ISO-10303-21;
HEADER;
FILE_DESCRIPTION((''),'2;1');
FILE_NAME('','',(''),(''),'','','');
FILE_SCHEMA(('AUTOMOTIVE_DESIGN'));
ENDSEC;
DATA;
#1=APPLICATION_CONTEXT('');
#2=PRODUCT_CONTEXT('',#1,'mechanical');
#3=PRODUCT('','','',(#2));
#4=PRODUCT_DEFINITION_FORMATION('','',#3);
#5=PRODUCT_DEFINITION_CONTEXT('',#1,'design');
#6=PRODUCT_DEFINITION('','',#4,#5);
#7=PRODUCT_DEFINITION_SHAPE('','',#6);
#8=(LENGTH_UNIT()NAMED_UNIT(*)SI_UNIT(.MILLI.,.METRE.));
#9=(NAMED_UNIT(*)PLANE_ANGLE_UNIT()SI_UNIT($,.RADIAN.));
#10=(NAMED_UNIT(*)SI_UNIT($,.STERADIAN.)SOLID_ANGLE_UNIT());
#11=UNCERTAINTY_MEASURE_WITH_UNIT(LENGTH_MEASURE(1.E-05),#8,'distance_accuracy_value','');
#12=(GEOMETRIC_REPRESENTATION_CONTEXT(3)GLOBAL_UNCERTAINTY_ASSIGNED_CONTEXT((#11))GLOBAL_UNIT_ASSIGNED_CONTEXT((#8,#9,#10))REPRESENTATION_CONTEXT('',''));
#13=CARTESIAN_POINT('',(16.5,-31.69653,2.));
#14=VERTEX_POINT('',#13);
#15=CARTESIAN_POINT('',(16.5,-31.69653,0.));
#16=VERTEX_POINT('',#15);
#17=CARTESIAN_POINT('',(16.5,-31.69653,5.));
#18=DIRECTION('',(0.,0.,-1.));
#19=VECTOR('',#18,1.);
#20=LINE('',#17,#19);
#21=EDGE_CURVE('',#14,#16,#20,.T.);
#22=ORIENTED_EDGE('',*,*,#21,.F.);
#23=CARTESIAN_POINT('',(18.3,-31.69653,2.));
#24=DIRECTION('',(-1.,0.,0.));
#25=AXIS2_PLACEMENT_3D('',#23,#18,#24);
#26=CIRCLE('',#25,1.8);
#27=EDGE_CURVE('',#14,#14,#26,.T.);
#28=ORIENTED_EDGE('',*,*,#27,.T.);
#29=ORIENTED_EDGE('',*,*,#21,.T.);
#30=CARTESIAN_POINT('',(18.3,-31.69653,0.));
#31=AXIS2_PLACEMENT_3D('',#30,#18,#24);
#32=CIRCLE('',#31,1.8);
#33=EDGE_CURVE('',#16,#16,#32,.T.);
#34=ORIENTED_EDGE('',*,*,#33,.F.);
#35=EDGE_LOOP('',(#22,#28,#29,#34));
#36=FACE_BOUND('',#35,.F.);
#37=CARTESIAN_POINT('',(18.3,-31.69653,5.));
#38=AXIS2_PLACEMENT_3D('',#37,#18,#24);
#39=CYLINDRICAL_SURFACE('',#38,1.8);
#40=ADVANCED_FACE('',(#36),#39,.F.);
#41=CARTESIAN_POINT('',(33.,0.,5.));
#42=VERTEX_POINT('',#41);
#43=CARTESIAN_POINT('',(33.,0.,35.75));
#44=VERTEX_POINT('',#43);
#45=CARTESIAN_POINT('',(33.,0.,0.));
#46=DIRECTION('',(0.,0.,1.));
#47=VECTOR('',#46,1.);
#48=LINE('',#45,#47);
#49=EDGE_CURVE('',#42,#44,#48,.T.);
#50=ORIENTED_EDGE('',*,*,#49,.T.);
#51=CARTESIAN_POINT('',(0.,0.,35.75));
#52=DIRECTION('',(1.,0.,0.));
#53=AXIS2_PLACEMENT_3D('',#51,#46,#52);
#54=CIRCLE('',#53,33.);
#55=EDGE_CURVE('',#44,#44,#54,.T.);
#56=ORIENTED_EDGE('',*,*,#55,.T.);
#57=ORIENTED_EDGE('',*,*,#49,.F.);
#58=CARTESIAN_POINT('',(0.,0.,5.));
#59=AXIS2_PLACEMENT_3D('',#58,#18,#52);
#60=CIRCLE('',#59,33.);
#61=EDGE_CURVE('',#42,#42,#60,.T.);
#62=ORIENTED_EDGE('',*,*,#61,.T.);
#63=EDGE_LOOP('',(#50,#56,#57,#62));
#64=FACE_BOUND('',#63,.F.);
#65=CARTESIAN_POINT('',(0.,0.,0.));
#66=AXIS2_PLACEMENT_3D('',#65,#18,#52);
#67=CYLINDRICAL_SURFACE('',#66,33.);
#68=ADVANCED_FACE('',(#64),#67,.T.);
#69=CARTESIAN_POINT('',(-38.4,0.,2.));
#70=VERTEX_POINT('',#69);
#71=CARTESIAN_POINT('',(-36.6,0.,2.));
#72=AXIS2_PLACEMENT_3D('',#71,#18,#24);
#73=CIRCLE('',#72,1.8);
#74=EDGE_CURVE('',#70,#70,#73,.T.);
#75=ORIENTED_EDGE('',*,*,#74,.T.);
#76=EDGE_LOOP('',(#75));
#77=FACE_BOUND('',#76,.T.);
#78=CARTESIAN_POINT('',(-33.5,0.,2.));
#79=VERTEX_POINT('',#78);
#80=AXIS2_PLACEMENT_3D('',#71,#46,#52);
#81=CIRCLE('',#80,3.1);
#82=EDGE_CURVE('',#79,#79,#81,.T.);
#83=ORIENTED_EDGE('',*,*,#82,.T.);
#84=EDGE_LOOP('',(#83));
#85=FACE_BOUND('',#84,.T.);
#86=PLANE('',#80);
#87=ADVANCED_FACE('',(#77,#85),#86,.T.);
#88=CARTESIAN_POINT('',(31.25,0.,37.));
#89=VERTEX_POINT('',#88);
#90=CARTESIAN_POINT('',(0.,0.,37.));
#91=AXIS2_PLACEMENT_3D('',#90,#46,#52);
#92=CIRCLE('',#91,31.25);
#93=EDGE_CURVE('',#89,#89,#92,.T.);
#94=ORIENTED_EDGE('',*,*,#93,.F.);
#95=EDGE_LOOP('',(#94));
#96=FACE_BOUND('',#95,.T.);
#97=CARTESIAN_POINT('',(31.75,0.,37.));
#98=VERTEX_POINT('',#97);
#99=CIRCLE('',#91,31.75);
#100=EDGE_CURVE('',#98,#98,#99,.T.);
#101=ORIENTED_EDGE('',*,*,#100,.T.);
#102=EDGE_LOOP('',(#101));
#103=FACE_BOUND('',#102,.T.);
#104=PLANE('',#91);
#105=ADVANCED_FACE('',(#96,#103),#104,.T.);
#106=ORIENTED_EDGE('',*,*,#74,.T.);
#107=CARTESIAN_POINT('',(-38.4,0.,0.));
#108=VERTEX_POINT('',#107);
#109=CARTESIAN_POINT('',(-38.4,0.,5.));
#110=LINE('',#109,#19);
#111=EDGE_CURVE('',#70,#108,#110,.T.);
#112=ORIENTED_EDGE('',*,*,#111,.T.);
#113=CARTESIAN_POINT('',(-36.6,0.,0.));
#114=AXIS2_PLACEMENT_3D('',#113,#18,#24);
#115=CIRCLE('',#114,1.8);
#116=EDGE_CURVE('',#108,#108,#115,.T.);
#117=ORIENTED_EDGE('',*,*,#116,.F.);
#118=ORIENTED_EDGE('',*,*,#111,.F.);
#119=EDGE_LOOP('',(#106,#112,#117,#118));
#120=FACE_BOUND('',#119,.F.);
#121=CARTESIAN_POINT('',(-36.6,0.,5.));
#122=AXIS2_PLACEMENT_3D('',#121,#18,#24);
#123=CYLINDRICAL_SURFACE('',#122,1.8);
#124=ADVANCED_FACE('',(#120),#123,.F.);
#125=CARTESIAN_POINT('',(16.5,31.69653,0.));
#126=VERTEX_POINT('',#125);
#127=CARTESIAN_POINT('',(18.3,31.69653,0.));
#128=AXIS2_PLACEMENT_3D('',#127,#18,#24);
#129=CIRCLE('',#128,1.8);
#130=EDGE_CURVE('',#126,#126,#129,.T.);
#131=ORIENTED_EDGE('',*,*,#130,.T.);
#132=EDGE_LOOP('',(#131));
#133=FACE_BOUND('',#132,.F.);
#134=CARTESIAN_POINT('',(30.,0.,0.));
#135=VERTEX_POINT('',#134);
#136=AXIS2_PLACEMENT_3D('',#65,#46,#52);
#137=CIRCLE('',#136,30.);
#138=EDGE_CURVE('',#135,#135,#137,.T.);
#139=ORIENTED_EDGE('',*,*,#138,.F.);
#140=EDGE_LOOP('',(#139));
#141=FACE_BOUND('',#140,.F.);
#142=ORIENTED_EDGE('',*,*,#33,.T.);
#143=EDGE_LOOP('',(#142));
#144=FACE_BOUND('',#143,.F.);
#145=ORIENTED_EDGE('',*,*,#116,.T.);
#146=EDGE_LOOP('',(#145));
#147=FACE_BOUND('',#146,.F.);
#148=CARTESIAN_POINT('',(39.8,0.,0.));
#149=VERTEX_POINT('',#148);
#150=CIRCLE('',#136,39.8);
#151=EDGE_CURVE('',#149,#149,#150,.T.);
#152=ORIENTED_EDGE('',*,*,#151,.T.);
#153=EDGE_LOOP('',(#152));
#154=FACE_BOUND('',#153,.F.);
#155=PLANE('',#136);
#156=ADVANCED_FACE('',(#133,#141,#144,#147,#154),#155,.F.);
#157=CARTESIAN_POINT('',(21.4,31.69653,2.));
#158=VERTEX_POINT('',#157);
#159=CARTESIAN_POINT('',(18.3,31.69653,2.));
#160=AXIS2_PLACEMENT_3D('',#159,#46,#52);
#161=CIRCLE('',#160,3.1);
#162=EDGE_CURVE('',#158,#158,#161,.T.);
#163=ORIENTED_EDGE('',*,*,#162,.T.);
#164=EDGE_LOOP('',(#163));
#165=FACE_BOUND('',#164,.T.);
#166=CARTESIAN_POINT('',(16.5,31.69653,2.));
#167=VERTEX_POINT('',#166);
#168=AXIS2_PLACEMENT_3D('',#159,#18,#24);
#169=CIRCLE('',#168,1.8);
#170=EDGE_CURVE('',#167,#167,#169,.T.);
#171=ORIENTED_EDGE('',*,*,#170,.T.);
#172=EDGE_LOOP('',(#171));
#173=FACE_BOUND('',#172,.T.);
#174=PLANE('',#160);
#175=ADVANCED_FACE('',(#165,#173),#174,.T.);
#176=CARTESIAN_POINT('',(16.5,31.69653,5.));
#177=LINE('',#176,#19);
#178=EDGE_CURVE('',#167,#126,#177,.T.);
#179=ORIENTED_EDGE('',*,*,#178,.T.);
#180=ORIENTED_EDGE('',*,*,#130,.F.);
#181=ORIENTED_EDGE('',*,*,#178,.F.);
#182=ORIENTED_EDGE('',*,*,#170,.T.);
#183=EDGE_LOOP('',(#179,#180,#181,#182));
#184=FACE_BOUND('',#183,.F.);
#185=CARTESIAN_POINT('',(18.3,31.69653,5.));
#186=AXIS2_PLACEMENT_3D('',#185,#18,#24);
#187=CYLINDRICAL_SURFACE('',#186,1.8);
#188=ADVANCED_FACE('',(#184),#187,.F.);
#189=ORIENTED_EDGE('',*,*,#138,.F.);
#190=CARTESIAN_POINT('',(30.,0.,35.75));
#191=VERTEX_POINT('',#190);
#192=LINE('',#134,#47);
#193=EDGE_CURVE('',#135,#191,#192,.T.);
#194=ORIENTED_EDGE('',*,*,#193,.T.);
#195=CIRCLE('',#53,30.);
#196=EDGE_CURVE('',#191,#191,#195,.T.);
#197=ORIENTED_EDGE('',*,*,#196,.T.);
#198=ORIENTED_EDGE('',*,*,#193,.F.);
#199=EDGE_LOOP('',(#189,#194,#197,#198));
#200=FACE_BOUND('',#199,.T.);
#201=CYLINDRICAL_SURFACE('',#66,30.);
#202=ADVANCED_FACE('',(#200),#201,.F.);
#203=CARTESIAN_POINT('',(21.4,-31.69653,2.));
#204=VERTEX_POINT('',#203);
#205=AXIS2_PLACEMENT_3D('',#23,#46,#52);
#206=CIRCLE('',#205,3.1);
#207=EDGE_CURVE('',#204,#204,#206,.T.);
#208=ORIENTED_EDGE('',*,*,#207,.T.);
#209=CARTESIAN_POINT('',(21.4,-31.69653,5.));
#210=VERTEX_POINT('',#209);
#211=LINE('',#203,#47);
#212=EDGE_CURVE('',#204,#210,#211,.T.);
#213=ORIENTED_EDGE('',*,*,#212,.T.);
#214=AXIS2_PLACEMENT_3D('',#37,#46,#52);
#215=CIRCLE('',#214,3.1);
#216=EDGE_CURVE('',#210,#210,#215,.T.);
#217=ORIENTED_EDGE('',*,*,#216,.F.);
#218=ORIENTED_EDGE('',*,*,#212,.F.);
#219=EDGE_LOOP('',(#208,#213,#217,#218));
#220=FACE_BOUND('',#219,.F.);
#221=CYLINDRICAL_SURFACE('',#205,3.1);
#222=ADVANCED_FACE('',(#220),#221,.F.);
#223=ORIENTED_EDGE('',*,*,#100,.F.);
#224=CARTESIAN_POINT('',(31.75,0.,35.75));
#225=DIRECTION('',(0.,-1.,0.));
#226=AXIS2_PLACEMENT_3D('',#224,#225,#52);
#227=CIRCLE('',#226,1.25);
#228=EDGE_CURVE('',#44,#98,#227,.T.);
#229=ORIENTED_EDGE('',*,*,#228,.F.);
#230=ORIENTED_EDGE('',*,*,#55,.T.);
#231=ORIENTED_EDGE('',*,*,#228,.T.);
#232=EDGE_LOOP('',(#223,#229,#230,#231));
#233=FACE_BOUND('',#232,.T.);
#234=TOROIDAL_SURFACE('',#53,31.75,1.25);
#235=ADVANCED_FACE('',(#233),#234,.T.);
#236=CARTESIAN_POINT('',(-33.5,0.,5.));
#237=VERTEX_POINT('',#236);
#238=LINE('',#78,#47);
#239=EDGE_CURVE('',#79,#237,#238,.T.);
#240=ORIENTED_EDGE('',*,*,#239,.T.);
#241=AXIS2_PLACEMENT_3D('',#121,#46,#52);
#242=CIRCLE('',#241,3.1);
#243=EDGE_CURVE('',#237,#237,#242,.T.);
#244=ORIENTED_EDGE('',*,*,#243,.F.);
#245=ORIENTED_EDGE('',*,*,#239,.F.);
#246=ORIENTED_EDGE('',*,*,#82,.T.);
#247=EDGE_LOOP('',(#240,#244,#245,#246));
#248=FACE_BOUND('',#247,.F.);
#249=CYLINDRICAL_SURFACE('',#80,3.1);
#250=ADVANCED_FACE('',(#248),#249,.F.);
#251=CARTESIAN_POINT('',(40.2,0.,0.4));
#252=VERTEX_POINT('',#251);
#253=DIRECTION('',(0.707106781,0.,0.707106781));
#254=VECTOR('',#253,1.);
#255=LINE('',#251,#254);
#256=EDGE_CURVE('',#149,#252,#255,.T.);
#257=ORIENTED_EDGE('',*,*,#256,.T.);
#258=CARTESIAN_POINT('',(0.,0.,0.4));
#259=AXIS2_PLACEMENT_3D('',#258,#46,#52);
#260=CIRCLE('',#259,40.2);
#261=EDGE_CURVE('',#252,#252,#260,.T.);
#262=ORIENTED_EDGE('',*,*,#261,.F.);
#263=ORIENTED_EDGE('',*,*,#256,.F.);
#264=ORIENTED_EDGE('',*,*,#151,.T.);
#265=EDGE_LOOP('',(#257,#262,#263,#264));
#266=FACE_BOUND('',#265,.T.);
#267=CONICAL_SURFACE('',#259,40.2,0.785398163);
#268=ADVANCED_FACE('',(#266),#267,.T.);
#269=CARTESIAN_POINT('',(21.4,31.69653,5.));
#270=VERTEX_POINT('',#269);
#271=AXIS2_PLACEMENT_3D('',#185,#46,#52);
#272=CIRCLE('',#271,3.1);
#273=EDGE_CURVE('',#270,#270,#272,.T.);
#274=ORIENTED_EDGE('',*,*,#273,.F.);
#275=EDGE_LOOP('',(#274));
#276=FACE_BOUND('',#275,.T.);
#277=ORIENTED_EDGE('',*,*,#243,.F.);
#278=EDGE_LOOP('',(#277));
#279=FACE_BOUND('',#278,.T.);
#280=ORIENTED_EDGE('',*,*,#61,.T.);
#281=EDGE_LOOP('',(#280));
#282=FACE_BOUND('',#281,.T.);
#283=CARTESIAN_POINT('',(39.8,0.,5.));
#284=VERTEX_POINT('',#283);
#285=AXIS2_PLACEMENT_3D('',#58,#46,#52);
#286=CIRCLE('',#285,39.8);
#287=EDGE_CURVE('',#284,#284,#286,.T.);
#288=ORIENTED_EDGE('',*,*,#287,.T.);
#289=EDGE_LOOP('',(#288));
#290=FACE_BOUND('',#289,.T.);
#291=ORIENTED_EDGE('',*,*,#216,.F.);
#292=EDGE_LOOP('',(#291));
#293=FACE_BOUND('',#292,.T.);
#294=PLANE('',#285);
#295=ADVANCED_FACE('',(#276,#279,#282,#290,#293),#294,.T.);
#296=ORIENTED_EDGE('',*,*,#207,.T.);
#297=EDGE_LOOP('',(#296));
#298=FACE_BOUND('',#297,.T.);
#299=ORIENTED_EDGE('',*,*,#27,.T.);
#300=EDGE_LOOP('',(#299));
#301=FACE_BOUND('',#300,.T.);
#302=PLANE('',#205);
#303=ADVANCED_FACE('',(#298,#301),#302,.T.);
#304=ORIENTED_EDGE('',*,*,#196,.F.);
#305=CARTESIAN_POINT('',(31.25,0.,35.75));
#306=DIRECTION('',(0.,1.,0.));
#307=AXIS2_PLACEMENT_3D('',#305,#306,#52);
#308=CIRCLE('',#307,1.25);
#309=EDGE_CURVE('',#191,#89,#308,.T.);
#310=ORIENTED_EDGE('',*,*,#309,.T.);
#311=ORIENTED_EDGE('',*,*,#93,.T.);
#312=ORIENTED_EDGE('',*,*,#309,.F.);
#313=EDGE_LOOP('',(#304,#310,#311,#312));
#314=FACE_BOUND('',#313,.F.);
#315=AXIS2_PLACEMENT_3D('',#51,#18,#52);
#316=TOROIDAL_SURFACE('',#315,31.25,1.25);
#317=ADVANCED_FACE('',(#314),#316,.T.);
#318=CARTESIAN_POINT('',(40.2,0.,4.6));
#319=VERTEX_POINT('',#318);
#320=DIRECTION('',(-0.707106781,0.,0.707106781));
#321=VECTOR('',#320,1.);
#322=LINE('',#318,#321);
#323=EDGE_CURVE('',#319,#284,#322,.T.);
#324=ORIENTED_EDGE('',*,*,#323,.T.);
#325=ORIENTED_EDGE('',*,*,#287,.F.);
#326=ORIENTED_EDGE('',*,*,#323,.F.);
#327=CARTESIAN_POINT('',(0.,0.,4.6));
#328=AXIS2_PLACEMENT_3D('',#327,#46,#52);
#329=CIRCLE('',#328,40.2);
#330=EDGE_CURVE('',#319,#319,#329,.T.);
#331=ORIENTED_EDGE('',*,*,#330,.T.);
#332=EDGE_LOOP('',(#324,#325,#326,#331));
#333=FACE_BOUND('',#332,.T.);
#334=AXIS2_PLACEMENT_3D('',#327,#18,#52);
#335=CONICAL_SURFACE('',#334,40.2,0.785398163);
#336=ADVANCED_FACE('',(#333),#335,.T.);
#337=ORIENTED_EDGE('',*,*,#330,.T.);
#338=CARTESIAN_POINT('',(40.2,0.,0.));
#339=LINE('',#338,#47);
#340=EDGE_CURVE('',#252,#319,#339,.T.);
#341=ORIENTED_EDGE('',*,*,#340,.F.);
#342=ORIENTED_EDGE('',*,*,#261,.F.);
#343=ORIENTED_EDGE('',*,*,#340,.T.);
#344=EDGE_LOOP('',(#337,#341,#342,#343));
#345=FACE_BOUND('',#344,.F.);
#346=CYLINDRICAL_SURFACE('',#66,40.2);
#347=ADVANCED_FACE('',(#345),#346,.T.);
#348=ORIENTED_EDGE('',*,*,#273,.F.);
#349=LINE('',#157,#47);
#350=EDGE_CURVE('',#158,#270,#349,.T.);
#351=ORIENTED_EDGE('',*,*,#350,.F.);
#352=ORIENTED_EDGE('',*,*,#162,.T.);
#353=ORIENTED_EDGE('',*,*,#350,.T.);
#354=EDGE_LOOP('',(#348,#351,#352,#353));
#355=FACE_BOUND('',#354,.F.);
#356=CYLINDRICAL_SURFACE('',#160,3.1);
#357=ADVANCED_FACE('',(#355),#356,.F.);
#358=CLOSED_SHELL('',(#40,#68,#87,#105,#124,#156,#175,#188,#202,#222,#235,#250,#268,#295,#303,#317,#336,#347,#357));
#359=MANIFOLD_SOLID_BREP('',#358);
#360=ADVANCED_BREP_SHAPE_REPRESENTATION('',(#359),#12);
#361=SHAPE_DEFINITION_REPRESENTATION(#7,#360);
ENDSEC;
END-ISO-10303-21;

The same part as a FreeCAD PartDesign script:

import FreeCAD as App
import Part
import Sketcher
from FreeCAD import Vector
Q = App.Units.Quantity


def edges_at(feature, points):
    """Names of the edges that pass closest to the given points."""
    edges = feature.Shape.Edges
    near = lambda p: min(range(len(edges)), key=lambda i: edges[i].distToShape(Part.Vertex(*p))[0])
    return sorted({f"Edge{near(p) + 1}" for p in points})

doc = App.newDocument("Part")
body = doc.addObject("PartDesign::Body", "Body")

sketch1 = doc.addObject("Sketcher::SketchObject", "Sketch")
body.addObject(sketch1)
sketch1.AttachmentSupport = (doc.XY_Plane, [""])
sketch1.MapMode = "FlatFace"
sketch1.addGeometry(Part.Circle(Vector(0, 0, 0), Vector(0, 0, 1), 33), False)
sketch1.addConstraint([
    Sketcher.Constraint("Coincident", 0, 3, -1, 1),
    Sketcher.Constraint("Diameter", 0, Q("66 mm")),
])
pad1 = doc.addObject("PartDesign::Pad", "Pad")
body.addObject(pad1)
pad1.Profile = sketch1
pad1.Length = 37

sketch2 = doc.addObject("Sketcher::SketchObject", "Sketch001")
body.addObject(sketch2)
sketch2.AttachmentSupport = (doc.XY_Plane, [""])
sketch2.MapMode = "FlatFace"
sketch2.addGeometry(Part.Circle(Vector(0, 0, 0), Vector(0, 0, 1), 40), False)
sketch2.addConstraint([
    Sketcher.Constraint("Coincident", 0, 3, -1, 1),
    Sketcher.Constraint("Diameter", 0, Q("80.4 mm")),
])
pad2 = doc.addObject("PartDesign::Pad", "Pad001")
body.addObject(pad2)
pad2.Profile = sketch2
pad2.Length = 5

sketch3 = doc.addObject("Sketcher::SketchObject", "Sketch002")
body.addObject(sketch3)
sketch3.AttachmentSupport = (doc.XY_Plane, [""])
sketch3.MapMode = "FlatFace"
sketch3.addGeometry(Part.Circle(Vector(0, 0, 0), Vector(0, 0, 1), 30), False)
sketch3.addConstraint([
    Sketcher.Constraint("Coincident", 0, 3, -1, 1),
    Sketcher.Constraint("Diameter", 0, Q("60 mm")),
])
pocket1 = doc.addObject("PartDesign::Pocket", "Pocket")
body.addObject(pocket1)
pocket1.Profile = sketch3
pocket1.Length = 37
pocket1.Reversed = True

sketch4 = doc.addObject("Sketcher::SketchObject", "Sketch003")
body.addObject(sketch4)
sketch4.AttachmentSupport = (doc.XY_Plane, [""])
sketch4.MapMode = "FlatFace"
sketch4.AttachmentOffset = App.Placement(Vector(0, 0, 5), App.Rotation())
sketch4.addGeometry([
    Part.Circle(Vector(-36.6, 0, 0), Vector(0, 0, 1), 1.8),
    Part.Circle(Vector(18.3, 31.7, 0), Vector(0, 0, 1), 1.8),
    Part.Circle(Vector(18.3, -31.7, 0), Vector(0, 0, 1), 1.8),
], False)
sketch4.addConstraint([
    Sketcher.Constraint("Equal", 0, 1),
    Sketcher.Constraint("Equal", 1, 2),
    Sketcher.Constraint("Symmetric", 1, 3, 2, 3, -1),
    Sketcher.Constraint("PointOnObject", 0, 3, -1),
    Sketcher.Constraint("Diameter", 0, Q("3.6 mm")),
    Sketcher.Constraint("DistanceX", 0, 3, -1, 1, Q("36.6 mm")),
    Sketcher.Constraint("DistanceX", -1, 1, 1, 3, Q("18.3 mm")),
    Sketcher.Constraint("DistanceY", -1, 1, 1, 3, Q("31.69653 mm")),
])
doc.recompute()
hole = doc.addObject("PartDesign::Hole", "Hole")
body.addObject(hole)
hole.Profile = sketch4
hole.ThreadType = "None"
hole.Diameter = 3.6
hole.DepthType = "Dimension"
hole.Depth = 5
hole.DrillPoint = "Flat"
hole.HoleCutType = "Counterbore"
hole.HoleCutDiameter = 6.2
hole.HoleCutDepth = 3
doc.recompute()

fillet = doc.addObject("PartDesign::Fillet", "Fillet")
body.addObject(fillet)
fillet.Base = (hole, edges_at(hole, [(-33, 0, 37), (-30, 0, 37)]))
fillet.Radius = 1.25
doc.recompute()

chamfer = doc.addObject("PartDesign::Chamfer", "Chamfer")
body.addObject(chamfer)
chamfer.Base = (fillet, edges_at(fillet, [(-40.2, 0, 5), (-40.2, 0, 0)]))
chamfer.Size = 0.4

doc.recompute()
